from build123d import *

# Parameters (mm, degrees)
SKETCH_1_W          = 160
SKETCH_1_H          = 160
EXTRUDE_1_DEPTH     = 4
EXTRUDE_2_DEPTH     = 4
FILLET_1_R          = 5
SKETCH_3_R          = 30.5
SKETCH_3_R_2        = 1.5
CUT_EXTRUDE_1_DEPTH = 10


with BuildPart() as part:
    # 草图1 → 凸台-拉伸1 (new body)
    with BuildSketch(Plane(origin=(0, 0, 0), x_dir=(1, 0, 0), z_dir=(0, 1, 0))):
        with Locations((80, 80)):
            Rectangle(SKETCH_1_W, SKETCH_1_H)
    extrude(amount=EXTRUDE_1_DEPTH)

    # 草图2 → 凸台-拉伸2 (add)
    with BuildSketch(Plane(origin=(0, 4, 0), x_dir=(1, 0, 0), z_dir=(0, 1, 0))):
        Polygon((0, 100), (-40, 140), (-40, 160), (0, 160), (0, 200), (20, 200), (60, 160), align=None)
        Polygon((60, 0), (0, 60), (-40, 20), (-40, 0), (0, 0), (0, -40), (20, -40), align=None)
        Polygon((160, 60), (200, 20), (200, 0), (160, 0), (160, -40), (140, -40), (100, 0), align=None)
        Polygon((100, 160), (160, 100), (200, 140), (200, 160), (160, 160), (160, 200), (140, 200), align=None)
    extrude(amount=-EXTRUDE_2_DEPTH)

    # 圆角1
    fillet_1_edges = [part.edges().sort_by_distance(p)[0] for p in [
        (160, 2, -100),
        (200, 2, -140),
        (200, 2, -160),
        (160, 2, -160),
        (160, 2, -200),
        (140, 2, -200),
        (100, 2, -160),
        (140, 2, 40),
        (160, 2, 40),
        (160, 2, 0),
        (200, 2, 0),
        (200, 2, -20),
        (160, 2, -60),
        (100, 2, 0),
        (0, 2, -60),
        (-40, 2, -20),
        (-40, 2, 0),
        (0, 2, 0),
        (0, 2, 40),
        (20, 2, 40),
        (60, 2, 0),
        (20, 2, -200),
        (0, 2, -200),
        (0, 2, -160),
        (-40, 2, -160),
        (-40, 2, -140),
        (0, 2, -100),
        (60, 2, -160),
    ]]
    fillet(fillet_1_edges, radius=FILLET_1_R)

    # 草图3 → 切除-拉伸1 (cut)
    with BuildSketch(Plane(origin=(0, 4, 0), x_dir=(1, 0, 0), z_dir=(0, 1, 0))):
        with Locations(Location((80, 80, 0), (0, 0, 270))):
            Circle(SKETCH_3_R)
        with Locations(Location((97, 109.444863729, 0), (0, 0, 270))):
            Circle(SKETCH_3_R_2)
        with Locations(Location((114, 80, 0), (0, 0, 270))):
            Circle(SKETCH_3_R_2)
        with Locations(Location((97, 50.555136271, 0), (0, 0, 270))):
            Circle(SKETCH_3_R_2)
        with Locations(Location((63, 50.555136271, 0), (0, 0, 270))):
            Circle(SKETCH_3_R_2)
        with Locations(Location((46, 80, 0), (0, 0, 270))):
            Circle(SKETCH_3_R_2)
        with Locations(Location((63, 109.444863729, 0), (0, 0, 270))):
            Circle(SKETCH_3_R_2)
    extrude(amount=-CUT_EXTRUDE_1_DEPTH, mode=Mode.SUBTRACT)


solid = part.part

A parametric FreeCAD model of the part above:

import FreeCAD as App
import Part
import Sketcher
from FreeCAD import Vector


def edges_at(feature, points):
    """Names of the edges that pass closest to the given points."""
    edges = feature.Shape.Edges
    near = lambda p: min(range(len(edges)), key=lambda i: edges[i].distToShape(Part.Vertex(*p))[0])
    return sorted({f"Edge{near(p) + 1}" for p in points})

doc = App.newDocument("Part")
body = doc.addObject("PartDesign::Body", "Body")

# Sketch on XZ plane
sketch1 = body.newObject("Sketcher::SketchObject", "Sketch")
sketch1.AttachmentSupport = (doc.getObject("XZ_Plane"), [""])
sketch1.MapMode = "FlatFace"
sketch1.addGeometry(Part.LineSegment(Vector(0, -160, 0), Vector(0, 0, 0)), False)
sketch1.addGeometry(Part.LineSegment(Vector(0, 0, 0), Vector(160, 0, 0)), False)
sketch1.addGeometry(Part.LineSegment(Vector(160, 0, 0), Vector(160, -160, 0)), False)
sketch1.addGeometry(Part.LineSegment(Vector(160, -160, 0), Vector(0, -160, 0)), False)
sketch1.addConstraint(Sketcher.Constraint("Coincident", 0, 2, 1, 1))
sketch1.addConstraint(Sketcher.Constraint("Coincident", 1, 2, 2, 1))
sketch1.addConstraint(Sketcher.Constraint("Coincident", 2, 2, 3, 1))
sketch1.addConstraint(Sketcher.Constraint("Coincident", 3, 2, 0, 1))
sketch1.addConstraint(Sketcher.Constraint("Vertical", 0))
sketch1.addConstraint(Sketcher.Constraint("Horizontal", 1))
sketch1.addConstraint(Sketcher.Constraint("Vertical", 2))
sketch1.addConstraint(Sketcher.Constraint("Horizontal", 3))
sketch1.addConstraint(Sketcher.Constraint("Coincident", 0, 2, -1, 1))
sketch1.addConstraint(Sketcher.Constraint("Equal", 3, 0))
sketch1.addConstraint(Sketcher.Constraint("DistanceX", 1, 1, 1, 2, 160.0))
pad1 = body.newObject("PartDesign::Pad", "Pad")
pad1.Profile = sketch1
pad1.Length = 4
pad1.Reversed = True

# Sketch on XZ plane
sketch2 = body.newObject("Sketcher::SketchObject", "Sketch001")
sketch2.AttachmentSupport = (doc.getObject("XZ_Plane"), [""])
sketch2.MapMode = "FlatFace"
sketch2.AttachmentOffset = App.Placement(Vector(0, 0, -4), App.Rotation())
sketch2.addGeometry(Part.LineSegment(Vector(-40, -140, 0), Vector(0, -100, 0)), False)
sketch2.addGeometry(Part.LineSegment(Vector(0, -100, 0), Vector(60, -160, 0)), False)
sketch2.addGeometry(Part.LineSegment(Vector(60, -160, 0), Vector(20, -200, 0)), False)
sketch2.addGeometry(Part.LineSegment(Vector(20, -200, 0), Vector(0, -200, 0)), False)
sketch2.addGeometry(Part.LineSegment(Vector(0, -200, 0), Vector(0, -160, 0)), False)
sketch2.addGeometry(Part.LineSegment(Vector(0, -160, 0), Vector(-40, -160, 0)), False)
sketch2.addGeometry(Part.LineSegment(Vector(-40, -160, 0), Vector(-40, -140, 0)), False)
sketch2.addGeometry(Part.LineSegment(Vector(60, 0, 0), Vector(0, -60, 0)), False)
sketch2.addGeometry(Part.LineSegment(Vector(0, -60, 0), Vector(-40, -20, 0)), False)
sketch2.addGeometry(Part.LineSegment(Vector(-40, -20, 0), Vector(-40, 0, 0)), False)
sketch2.addGeometry(Part.LineSegment(Vector(-40, 0, 0), Vector(0, 0, 0)), False)
sketch2.addGeometry(Part.LineSegment(Vector(0, 0, 0), Vector(0, 40, 0)), False)
sketch2.addGeometry(Part.LineSegment(Vector(0, 40, 0), Vector(20, 40, 0)), False)
sketch2.addGeometry(Part.LineSegment(Vector(20, 40, 0), Vector(60, 0, 0)), False)
sketch2.addGeometry(Part.LineSegment(Vector(200, -20, 0), Vector(160, -60, 0)), False)
sketch2.addGeometry(Part.LineSegment(Vector(160, -60, 0), Vector(100, 0, 0)), False)
sketch2.addGeometry(Part.LineSegment(Vector(100, 0, 0), Vector(140, 40, 0)), False)
sketch2.addGeometry(Part.LineSegment(Vector(140, 40, 0), Vector(160, 40, 0)), False)
sketch2.addGeometry(Part.LineSegment(Vector(160, 40, 0), Vector(160, 0, 0)), False)
sketch2.addGeometry(Part.LineSegment(Vector(160, 0, 0), Vector(200, 0, 0)), False)
sketch2.addGeometry(Part.LineSegment(Vector(200, 0, 0), Vector(200, -20, 0)), False)
sketch2.addGeometry(Part.LineSegment(Vector(100, -160, 0), Vector(160, -100, 0)), False)
sketch2.addGeometry(Part.LineSegment(Vector(160, -100, 0), Vector(200, -140, 0)), False)
sketch2.addGeometry(Part.LineSegment(Vector(200, -140, 0), Vector(200, -160, 0)), False)
sketch2.addGeometry(Part.LineSegment(Vector(200, -160, 0), Vector(160, -160, 0)), False)
sketch2.addGeometry(Part.LineSegment(Vector(160, -160, 0), Vector(160, -200, 0)), False)
sketch2.addGeometry(Part.LineSegment(Vector(160, -200, 0), Vector(140, -200, 0)), False)
sketch2.addGeometry(Part.LineSegment(Vector(140, -200, 0), Vector(100, -160, 0)), False)
sketch2.addConstraint(Sketcher.Constraint("Coincident", 0, 2, 1, 1))
sketch2.addConstraint(Sketcher.Constraint("Coincident", 1, 2, 2, 1))
sketch2.addConstraint(Sketcher.Constraint("Coincident", 2, 2, 3, 1))
sketch2.addConstraint(Sketcher.Constraint("Coincident", 3, 2, 4, 1))
sketch2.addConstraint(Sketcher.Constraint("Coincident", 4, 2, 5, 1))
sketch2.addConstraint(Sketcher.Constraint("Coincident", 5, 2, 6, 1))
sketch2.addConstraint(Sketcher.Constraint("Coincident", 6, 2, 0, 1))
sketch2.addConstraint(Sketcher.Constraint("Coincident", 7, 2, 8, 1))
sketch2.addConstraint(Sketcher.Constraint("Coincident", 8, 2, 9, 1))
sketch2.addConstraint(Sketcher.Constraint("Coincident", 9, 2, 10, 1))
sketch2.addConstraint(Sketcher.Constraint("Coincident", 10, 2, 11, 1))
sketch2.addConstraint(Sketcher.Constraint("Coincident", 11, 2, 12, 1))
sketch2.addConstraint(Sketcher.Constraint("Coincident", 12, 2, 13, 1))
sketch2.addConstraint(Sketcher.Constraint("Coincident", 13, 2, 7, 1))
sketch2.addConstraint(Sketcher.Constraint("Coincident", 14, 2, 15, 1))
sketch2.addConstraint(Sketcher.Constraint("Coincident", 15, 2, 16, 1))
sketch2.addConstraint(Sketcher.Constraint("Coincident", 16, 2, 17, 1))
sketch2.addConstraint(Sketcher.Constraint("Coincident", 17, 2, 18, 1))
sketch2.addConstraint(Sketcher.Constraint("Coincident", 18, 2, 19, 1))
sketch2.addConstraint(Sketcher.Constraint("Coincident", 19, 2, 20, 1))
sketch2.addConstraint(Sketcher.Constraint("Coincident", 20, 2, 14, 1))
sketch2.addConstraint(Sketcher.Constraint("Coincident", 21, 2, 22, 1))
sketch2.addConstraint(Sketcher.Constraint("Coincident", 22, 2, 23, 1))
sketch2.addConstraint(Sketcher.Constraint("Coincident", 23, 2, 24, 1))
sketch2.addConstraint(Sketcher.Constraint("Coincident", 24, 2, 25, 1))
sketch2.addConstraint(Sketcher.Constraint("Coincident", 25, 2, 26, 1))
sketch2.addConstraint(Sketcher.Constraint("Coincident", 26, 2, 27, 1))
sketch2.addConstraint(Sketcher.Constraint("Coincident", 27, 2, 21, 1))
sketch2.addConstraint(Sketcher.Constraint("Horizontal", 3))
sketch2.addConstraint(Sketcher.Constraint("Vertical", 4))
sketch2.addConstraint(Sketcher.Constraint("Horizontal", 5))
sketch2.addConstraint(Sketcher.Constraint("Vertical", 6))
sketch2.addConstraint(Sketcher.Constraint("Vertical", 9))
sketch2.addConstraint(Sketcher.Constraint("Horizontal", 10))
sketch2.addConstraint(Sketcher.Constraint("Vertical", 11))
sketch2.addConstraint(Sketcher.Constraint("Horizontal", 12))
sketch2.addConstraint(Sketcher.Constraint("Horizontal", 17))
sketch2.addConstraint(Sketcher.Constraint("Vertical", 18))
sketch2.addConstraint(Sketcher.Constraint("Horizontal", 19))
sketch2.addConstraint(Sketcher.Constraint("Vertical", 20))
sketch2.addConstraint(Sketcher.Constraint("Vertical", 23))
sketch2.addConstraint(Sketcher.Constraint("Horizontal", 24))
sketch2.addConstraint(Sketcher.Constraint("Vertical", 25))
sketch2.addConstraint(Sketcher.Constraint("Horizontal", 26))
sketch2.addConstraint(Sketcher.Constraint("Coincident", 10, 2, -1, 1))
sketch2.addConstraint(Sketcher.Constraint("PointOnObject", 0, 2, -2))
sketch2.addConstraint(Sketcher.Constraint("PointOnObject", 3, 2, -2))
sketch2.addConstraint(Sketcher.Constraint("PointOnObject", 7, 2, -2))
sketch2.addConstraint(Sketcher.Constraint("PointOnObject", 13, 2, -1))
sketch2.addConstraint(Sketcher.Constraint("PointOnObject", 15, 2, -1))
sketch2.addConstraint(Sketcher.Constraint("PointOnObject", 18, 2, -1))
sketch2.addConstraint(Sketcher.Constraint("Perpendicular", 0, 1))
sketch2.addConstraint(Sketcher.Constraint("Perpendicular", 1, 2))
sketch2.addConstraint(Sketcher.Constraint("Parallel", 2, 7))
sketch2.addConstraint(Sketcher.Constraint("Perpendicular", 7, 8))
sketch2.addConstraint(Sketcher.Constraint("Parallel", 8, 13))
sketch2.addConstraint(Sketcher.Constraint("Perpendicular", 13, 14))
sketch2.addConstraint(Sketcher.Constraint("Perpendicular", 14, 15))
sketch2.addConstraint(Sketcher.Constraint("Perpendicular", 15, 16))
sketch2.addConstraint(Sketcher.Constraint("Parallel", 16, 21))
sketch2.addConstraint(Sketcher.Constraint("Perpendicular", 21, 22))
sketch2.addConstraint(Sketcher.Constraint("Parallel", 22, 27))
sketch2.addConstraint(Sketcher.Constraint("Horizontal", 1, 2, 4, 2))
sketch2.addConstraint(Sketcher.Constraint("Horizontal", 7, 2, 14, 2))
sketch2.addConstraint(Sketcher.Constraint("Horizontal", 12, 2, 16, 2))
sketch2.addConstraint(Sketcher.Constraint("Horizontal", 8, 2, 20, 2))
sketch2.addConstraint(Sketcher.Constraint("Horizontal", 0, 2, 21, 2))
sketch2.addConstraint(Sketcher.Constraint("Horizontal", 6, 2, 22, 2))
sketch2.addConstraint(Sketcher.Constraint("Horizontal", 5, 2, 23, 2))
sketch2.addConstraint(Sketcher.Constraint("Horizontal", 3, 2, 25, 2))
sketch2.addConstraint(Sketcher.Constraint("Horizontal", 24, 2, 27, 2))
sketch2.addConstraint(Sketcher.Constraint("Vertical", 6, 2, 8, 2))
sketch2.addConstraint(Sketcher.Constraint("Vertical", 2, 2, 12, 2))
sketch2.addConstraint(Sketcher.Constraint("Vertical", 1, 2, 13, 2))
sketch2.addConstraint(Sketcher.Constraint("Vertical", 14, 2, 17, 2))
sketch2.addConstraint(Sketcher.Constraint("Vertical", 18, 2, 21, 2))
sketch2.addConstraint(Sketcher.Constraint("Vertical", 20, 2, 22, 2))
sketch2.addConstraint(Sketcher.Constraint("Vertical", 21, 2, 24, 2))
sketch2.addConstraint(Sketcher.Constraint("Equal", 24, 4))
sketch2.addConstraint(Sketcher.Constraint("DistanceX", 3, 2, 3, 1, 20.0))
sketch2.addConstraint(Sketcher.Constraint("DistanceX", 5, 2, 5, 1, 40.0))
sketch2.addConstraint(Sketcher.Constraint("DistanceY", 0, 2, -1, 1, 100.0))
sketch2.addConstraint(Sketcher.Constraint("DistanceX", -1, 1, 14, 2, 160.0))
pad2 = body.newObject("PartDesign::Pad", "Pad001")
pad2.Profile = sketch2
pad2.Length = 4
doc.recompute()

fillet = body.newObject("PartDesign::Fillet", "Fillet")
fillet.Base = (pad2, edges_at(pad2, [
    (160, 2, -100),
    (200, 2, -140),
    (200, 2, -160),
    (160, 2, -160),
    (160, 2, -200),
    (140, 2, -200),
    (100, 2, -160),
    (140, 2, 40),
    (160, 2, 40),
    (160, 2, 0),
    (200, 2, 0),
    (200, 2, -20),
    (160, 2, -60),
    (100, 2, 0),
    (0, 2, -60),
    (-40, 2, -20),
    (-40, 2, 0),
    (0, 2, 0),
    (0, 2, 40),
    (20, 2, 40),
    (60, 2, 0),
    (20, 2, -200),
    (0, 2, -200),
    (0, 2, -160),
    (-40, 2, -160),
    (-40, 2, -140),
    (0, 2, -100),
    (60, 2, -160),
]))
fillet.Radius = 5

# Sketch on XZ plane
sketch3 = body.newObject("Sketcher::SketchObject", "Sketch002")
sketch3.AttachmentSupport = (doc.getObject("XZ_Plane"), [""])
sketch3.MapMode = "FlatFace"
sketch3.AttachmentOffset = App.Placement(Vector(0, 0, -4), App.Rotation())
sketch3.addGeometry(Part.Circle(Vector(80, -80, 0), Vector(0, 0, 1), 30.5), False)
sketch3.addGeometry(Part.Circle(Vector(97, -109.4, 0), Vector(0, 0, 1), 1.5), False)
sketch3.addGeometry(Part.Circle(Vector(114, -80, 0), Vector(0, 0, 1), 1.5), False)
sketch3.addGeometry(Part.Circle(Vector(97, -50.6, 0), Vector(0, 0, 1), 1.5), False)
sketch3.addGeometry(Part.Circle(Vector(63, -50.6, 0), Vector(0, 0, 1), 1.5), False)
sketch3.addGeometry(Part.Circle(Vector(46, -80, 0), Vector(0, 0, 1), 1.5), False)
sketch3.addGeometry(Part.Circle(Vector(63, -109.4, 0), Vector(0, 0, 1), 1.5), False)
sketch3.addConstraint(Sketcher.Constraint("Equal", 1, 2))
sketch3.addConstraint(Sketcher.Constraint("Equal", 2, 3))
sketch3.addConstraint(Sketcher.Constraint("Equal", 3, 4))
sketch3.addConstraint(Sketcher.Constraint("Equal", 4, 5))
sketch3.addConstraint(Sketcher.Constraint("Equal", 5, 6))
sketch3.addConstraint(Sketcher.Constraint("Horizontal", 0, 3, 2, 3))
sketch3.addConstraint(Sketcher.Constraint("Horizontal", 3, 3, 4, 3))
sketch3.addConstraint(Sketcher.Constraint("Horizontal", 2, 3, 5, 3))
sketch3.addConstraint(Sketcher.Constraint("Horizontal", 1, 3, 6, 3))
sketch3.addConstraint(Sketcher.Constraint("Vertical", 1, 3, 3, 3))
sketch3.addConstraint(Sketcher.Constraint("Vertical", 4, 3, 6, 3))
sketch3.addConstraint(Sketcher.Constraint("Diameter", 0, 61.0))
sketch3.addConstraint(Sketcher.Constraint("Diameter", 1, 3.0))
sketch3.addConstraint(Sketcher.Constraint("DistanceX", -1, 1, 0, 3, 80.0))
sketch3.addConstraint(Sketcher.Constraint("DistanceY", 0, 3, -1, 1, 80.0))
sketch3.addConstraint(Sketcher.Constraint("DistanceX", -1, 1, 1, 3, 97.0))
sketch3.addConstraint(Sketcher.Constraint("DistanceX", -1, 1, 2, 3, 114.0))
sketch3.addConstraint(Sketcher.Constraint("DistanceX", -1, 1, 4, 3, 63.0))
sketch3.addConstraint(Sketcher.Constraint("DistanceX", -1, 1, 5, 3, 46.0))
sketch3.addConstraint(Sketcher.Constraint("DistanceY", 1, 3, -1, 1, 109.444864))
sketch3.addConstraint(Sketcher.Constraint("DistanceY", 3, 3, -1, 1, 50.555136))
pocket1 = body.newObject("PartDesign::Pocket", "Pocket")
pocket1.Profile = sketch3
pocket1.Length = 10
pocket1.Reversed = True

doc.recompute()
